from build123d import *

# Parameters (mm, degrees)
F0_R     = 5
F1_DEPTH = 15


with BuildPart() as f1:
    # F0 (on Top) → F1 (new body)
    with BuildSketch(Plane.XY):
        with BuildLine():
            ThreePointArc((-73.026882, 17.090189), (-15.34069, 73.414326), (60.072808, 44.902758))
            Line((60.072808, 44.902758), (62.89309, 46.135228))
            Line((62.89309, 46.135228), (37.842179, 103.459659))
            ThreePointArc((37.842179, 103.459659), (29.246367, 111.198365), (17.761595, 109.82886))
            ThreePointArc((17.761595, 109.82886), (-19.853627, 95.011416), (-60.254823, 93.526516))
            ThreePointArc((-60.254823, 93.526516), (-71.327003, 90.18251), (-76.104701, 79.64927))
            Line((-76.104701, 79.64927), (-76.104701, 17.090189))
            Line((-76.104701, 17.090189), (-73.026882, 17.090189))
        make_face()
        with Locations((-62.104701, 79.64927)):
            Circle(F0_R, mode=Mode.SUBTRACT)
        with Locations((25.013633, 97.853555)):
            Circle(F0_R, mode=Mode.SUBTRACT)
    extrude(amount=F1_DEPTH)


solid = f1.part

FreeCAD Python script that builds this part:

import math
import FreeCAD as App
import Part
import Sketcher
from FreeCAD import Vector

doc = App.newDocument("Part")
body = doc.addObject("PartDesign::Body", "Body")

# Sketch on XY plane
sketch1 = body.newObject("Sketcher::SketchObject", "Sketch")
sketch1.AttachmentSupport = (doc.getObject("XY_Plane"), [""])
sketch1.MapMode = "FlatFace"
sketch1.addGeometry([
    Part.ArcOfCircle(Part.Circle(Vector(-0.000001, 0, 0), Vector(0, 0, 1), 75), math.radians(36.777095), math.radians(166.828346)),  # 0
    Part.LineSegment(Vector(60.072808, 44.902758, 0), Vector(62.89309, 46.135228, 0)),  # 1
    Part.LineSegment(Vector(62.89309, 46.135228, 0), Vector(37.842179, 103.459659, 0)),  # 2
    Part.ArcOfCircle(Part.Circle(Vector(25.013633, 97.853555, 0), Vector(0, 0, 1), 14), math.radians(23.605438), math.radians(121.198375)),  # 3
    Part.ArcOfCircle(Part.Circle(Vector(-44.398729, 212.474336, 0), Vector(0, 0, 1), 119.999999), math.radians(-97.592932), math.radians(-58.801628)),  # 4
    Part.ArcOfCircle(Part.Circle(Vector(-62.104701, 79.64927, 0), Vector(0, 0, 1), 14), math.radians(82.407068), math.radians(179.999999)),  # 5
    Part.LineSegment(Vector(-76.104701, 79.64927, 0), Vector(-76.104701, 17.090189, 0)),  # 6
    Part.LineSegment(Vector(-76.104701, 17.090189, 0), Vector(-73.026882, 17.090189, 0)),  # 7
    Part.Circle(Vector(-62.104701, 79.64927, 0), Vector(0, 0, 1), 5),  # 8
    Part.Circle(Vector(25.013633, 97.853555, 0), Vector(0, 0, 1), 5),  # 9
], False)
sketch1.addConstraint([
    Sketcher.Constraint("Coincident", 0, 1, 1, 1),
    Sketcher.Constraint("Coincident", 1, 2, 2, 1),
    Sketcher.Constraint("Tangent", 2, 2, 3, 1),
    Sketcher.Constraint("Tangent", 3, 2, 4, 2),
    Sketcher.Constraint("Tangent", 4, 1, 5, 1),
    Sketcher.Constraint("Tangent", 5, 2, 6, 1),
    Sketcher.Constraint("Coincident", 6, 2, 7, 1),
    Sketcher.Constraint("Coincident", 7, 2, 0, 2),
    Sketcher.Constraint("Vertical", 6),
    Sketcher.Constraint("Horizontal", 7),
    Sketcher.Constraint("Coincident", 0, 3, -1, 1),
    Sketcher.Constraint("Coincident", 8, 3, 5, 3),
    Sketcher.Constraint("Coincident", 9, 3, 3, 3),
    Sketcher.Constraint("Equal", 3, 5),
    Sketcher.Constraint("Equal", 8, 9),
    Sketcher.Constraint("Perpendicular", 1, 2),
    Sketcher.Constraint("Diameter", 8, 10.0),
    Sketcher.Constraint("Radius", 0, 75.0),
    Sketcher.Constraint("Radius", 3, 14.0),
    Sketcher.Constraint("Radius", 4, 119.999999),
    Sketcher.Constraint("DistanceX", 7, 1, 7, 2, 3.077819),
    Sketcher.Constraint("DistanceY", 6, 2, 6, 1, 62.559081),
    Sketcher.Constraint("DistanceX", 5, 3, -1, 1, 62.104701),
    Sketcher.Constraint("DistanceY", 0, 1, 2, 2, 58.556901),
    Sketcher.Constraint("DistanceY", 2, 2, 3, 2, 6.369201),
    Sketcher.Constraint("Distance", 1, 3.077819),
    Sketcher.Constraint("Distance", 2, 62.55908),
])
pad1 = body.newObject("PartDesign::Pad", "Pad")
pad1.Profile = sketch1
pad1.Length = 15

doc.recompute()
